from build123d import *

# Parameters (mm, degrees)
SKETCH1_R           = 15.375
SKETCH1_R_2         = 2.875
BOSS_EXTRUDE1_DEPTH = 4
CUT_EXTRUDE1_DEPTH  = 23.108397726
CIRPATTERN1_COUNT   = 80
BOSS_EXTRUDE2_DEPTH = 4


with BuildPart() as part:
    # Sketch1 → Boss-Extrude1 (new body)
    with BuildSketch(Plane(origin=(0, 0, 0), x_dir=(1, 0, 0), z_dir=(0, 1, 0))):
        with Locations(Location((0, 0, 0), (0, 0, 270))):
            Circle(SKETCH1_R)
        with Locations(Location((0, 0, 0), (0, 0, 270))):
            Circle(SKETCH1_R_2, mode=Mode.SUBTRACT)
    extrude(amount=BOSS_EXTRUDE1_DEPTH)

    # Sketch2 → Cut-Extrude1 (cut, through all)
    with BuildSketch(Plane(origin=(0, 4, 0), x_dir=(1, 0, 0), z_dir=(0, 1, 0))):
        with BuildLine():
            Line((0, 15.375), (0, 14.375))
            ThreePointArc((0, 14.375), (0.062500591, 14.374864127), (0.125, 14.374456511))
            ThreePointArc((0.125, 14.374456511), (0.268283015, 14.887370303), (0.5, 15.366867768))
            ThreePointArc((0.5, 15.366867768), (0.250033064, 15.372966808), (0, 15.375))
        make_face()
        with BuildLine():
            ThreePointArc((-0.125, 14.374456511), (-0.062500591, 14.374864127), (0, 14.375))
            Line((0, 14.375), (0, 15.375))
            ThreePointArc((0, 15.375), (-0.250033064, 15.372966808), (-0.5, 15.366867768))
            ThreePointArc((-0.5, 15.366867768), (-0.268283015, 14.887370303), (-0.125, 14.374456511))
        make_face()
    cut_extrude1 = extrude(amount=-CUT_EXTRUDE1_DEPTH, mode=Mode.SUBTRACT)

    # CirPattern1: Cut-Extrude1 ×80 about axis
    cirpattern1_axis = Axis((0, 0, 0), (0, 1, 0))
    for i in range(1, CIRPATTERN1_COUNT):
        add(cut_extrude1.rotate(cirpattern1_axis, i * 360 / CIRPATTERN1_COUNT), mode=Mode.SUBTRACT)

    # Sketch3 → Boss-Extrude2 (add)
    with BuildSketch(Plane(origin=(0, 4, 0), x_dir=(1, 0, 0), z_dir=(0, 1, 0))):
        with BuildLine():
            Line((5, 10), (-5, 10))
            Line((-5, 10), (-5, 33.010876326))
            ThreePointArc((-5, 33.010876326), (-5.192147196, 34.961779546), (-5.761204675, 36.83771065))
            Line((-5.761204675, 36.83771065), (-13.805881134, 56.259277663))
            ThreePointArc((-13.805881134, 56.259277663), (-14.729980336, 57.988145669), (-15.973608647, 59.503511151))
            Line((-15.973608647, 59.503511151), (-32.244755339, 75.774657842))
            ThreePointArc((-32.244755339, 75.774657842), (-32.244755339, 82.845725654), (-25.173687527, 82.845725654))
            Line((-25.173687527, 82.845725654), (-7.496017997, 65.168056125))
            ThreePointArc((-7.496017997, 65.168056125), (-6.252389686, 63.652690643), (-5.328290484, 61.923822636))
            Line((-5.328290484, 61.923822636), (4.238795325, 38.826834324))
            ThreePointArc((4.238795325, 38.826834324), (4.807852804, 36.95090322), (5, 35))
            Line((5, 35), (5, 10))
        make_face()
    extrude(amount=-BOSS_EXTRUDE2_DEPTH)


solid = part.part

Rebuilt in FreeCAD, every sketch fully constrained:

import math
import FreeCAD as App
import Part
import Sketcher
Q = App.Units.Quantity

doc = App.newDocument("Part")
body = doc.addObject("PartDesign::Body", "Body")

sketch1 = body.newObject("Sketcher::SketchObject", "Sketch")
sketch1.AttachmentSupport = (doc.getObject("XZ_Plane"), [""])
sketch1.MapMode = "FlatFace"
sketch1.addGeometry([
    Part.Circle(App.Vector(0, 0, 0), App.Vector(0, 0, 1), 15.4),
    Part.Circle(App.Vector(0, 0, 0), App.Vector(0, 0, 1), 2.9),
], False)
sketch1.addConstraint([
    Sketcher.Constraint("Coincident", 0, 3, -1, 1),
    Sketcher.Constraint("Coincident", 1, 3, -1, 1),
    Sketcher.Constraint("Diameter", 0, Q("30.75 mm")),
    Sketcher.Constraint("Diameter", 1, Q("5.75 mm")),
])
pad1 = body.newObject("PartDesign::Pad", "Pad")
pad1.Profile = sketch1
pad1.Length = 4
pad1.Reversed = True

sketch2 = body.newObject("Sketcher::SketchObject", "Sketch001")
sketch2.AttachmentSupport = (doc.getObject("XZ_Plane"), [""])
sketch2.MapMode = "FlatFace"
sketch2.AttachmentOffset = App.Placement(App.Vector(0, 0, -4), App.Rotation())
sketch2.addGeometry([
    Part.ArcOfCircle(Part.Circle(App.Vector(0, 0, 0), App.Vector(0, 0, 1), 14.37), math.radians(-90), math.radians(-89.5)),
    Part.ArcOfCircle(Part.Circle(App.Vector(3.07, -13.83, 0), App.Vector(0, 0, 1), 3), math.radians(-169), math.radians(-149)),
    Part.ArcOfCircle(Part.Circle(App.Vector(0, 0, 0), App.Vector(0, 0, 1), 15.37), math.radians(-90), math.radians(-88.14)),
    Part.ArcOfCircle(Part.Circle(App.Vector(0, 0, 0), App.Vector(0, 0, 1), 15.37), math.radians(-91.86), math.radians(-90)),
    Part.ArcOfCircle(Part.Circle(App.Vector(-3.07, -13.83, 0), App.Vector(0, 0, 1), 3), math.radians(-31), math.radians(-11)),
    Part.ArcOfCircle(Part.Circle(App.Vector(0, 0, 0), App.Vector(0, 0, 1), 14.37), math.radians(-90.5), math.radians(-90)),
], False)
sketch2.addConstraint([
    Sketcher.Constraint("Coincident", 0, 2, 1, 1),
    Sketcher.Constraint("Coincident", 1, 2, 2, 2),
    Sketcher.Constraint("Tangent", 2, 1, 3, 2),
    Sketcher.Constraint("Coincident", 3, 1, 4, 1),
    Sketcher.Constraint("Coincident", 4, 2, 5, 1),
    Sketcher.Constraint("Tangent", 5, 2, 0, 1),
    Sketcher.Constraint("Coincident", 0, 3, -1, 1),
    Sketcher.Constraint("Coincident", 2, 3, -1, 1),
    Sketcher.Constraint("Equal", 2, 3),
    Sketcher.Constraint("Equal", 1, 4),
    Sketcher.Constraint("Equal", 0, 5),
    Sketcher.Constraint("Symmetric", 1, 3, 4, 3, -2),
    Sketcher.Constraint("PointOnObject", 2, 1, -2),
    Sketcher.Constraint("PointOnObject", 5, 2, -2),
    Sketcher.Constraint("Radius", 1, Q("3 mm")),
    Sketcher.Constraint("Radius", 0, Q("14.374999 mm")),
    Sketcher.Constraint("DistanceX", 3, 1, 1, 2, Q("1 mm")),
    Sketcher.Constraint("DistanceY", 2, 1, 5, 2, Q("1 mm")),
    Sketcher.Constraint("DistanceX", 4, 2, 0, 2, Q("0.25 mm")),
])
pocket1 = body.newObject("PartDesign::Pocket", "Pocket")
pocket1.Profile = sketch2
pocket1.Type = "ThroughAll"
pocket1.Reversed = True
doc.recompute()

polarpattern = body.newObject("PartDesign::PolarPattern", "PolarPattern")
polarpattern.Originals = [pocket1]
polarpattern.Axis = (doc.getObject("Y_Axis"), [""])
polarpattern.Angle = 360
polarpattern.Occurrences = 80
body.Tip = polarpattern

sketch3 = body.newObject("Sketcher::SketchObject", "Sketch002")
sketch3.AttachmentSupport = (doc.getObject("XZ_Plane"), [""])
sketch3.MapMode = "FlatFace"
sketch3.AttachmentOffset = App.Placement(App.Vector(0, 0, -4), App.Rotation())
sketch3.addGeometry([
    Part.LineSegment(App.Vector(-5, -10, 0), App.Vector(5, -10, 0)),
    Part.LineSegment(App.Vector(5, -10, 0), App.Vector(5, -35, 0)),
    Part.ArcOfCircle(Part.Circle(App.Vector(-5, -35, 0), App.Vector(0, 0, 1), 10), math.radians(-22), math.radians(0)),
    Part.LineSegment(App.Vector(4.2, -38.8, 0), App.Vector(-5.3, -61.9, 0)),
    Part.ArcOfCircle(Part.Circle(App.Vector(-14.6, -58.1, 0), App.Vector(0, 0, 1), 10), math.radians(-45), math.radians(-22)),
    Part.LineSegment(App.Vector(-7.5, -65.2, 0), App.Vector(-25.2, -82.8, 0)),
    Part.ArcOfCircle(Part.Circle(App.Vector(-28.7, -79.3, 0), App.Vector(0, 0, 1), 5), math.radians(135), math.radians(315)),
    Part.LineSegment(App.Vector(-32.2, -75.8, 0), App.Vector(-16, -59.5, 0)),
    Part.ArcOfCircle(Part.Circle(App.Vector(-23, -52.4, 0), App.Vector(0, 0, 1), 10), math.radians(-45), math.radians(-23)),
    Part.LineSegment(App.Vector(-13.8, -56.3, 0), App.Vector(-5.8, -36.8, 0)),
    Part.ArcOfCircle(Part.Circle(App.Vector(-15, -33, 0), App.Vector(0, 0, 1), 10), math.radians(-22), math.radians(0)),
    Part.LineSegment(App.Vector(-5, -33, 0), App.Vector(-5, -10, 0)),
], False)
sketch3.addConstraint([
    Sketcher.Constraint("Coincident", 0, 2, 1, 1),
    Sketcher.Constraint("Tangent", 1, 2, 2, 2),
    Sketcher.Constraint("Tangent", 2, 1, 3, 1),
    Sketcher.Constraint("Tangent", 3, 2, 4, 2),
    Sketcher.Constraint("Tangent", 4, 1, 5, 1),
    Sketcher.Constraint("Tangent", 5, 2, 6, 2),
    Sketcher.Constraint("Tangent", 6, 1, 7, 1),
    Sketcher.Constraint("Tangent", 7, 2, 8, 1),
    Sketcher.Constraint("Tangent", 8, 2, 9, 1),
    Sketcher.Constraint("Tangent", 9, 2, 10, 1),
    Sketcher.Constraint("Tangent", 10, 2, 11, 1),
    Sketcher.Constraint("Coincident", 11, 2, 0, 1),
    Sketcher.Constraint("Horizontal", 0),
    Sketcher.Constraint("Vertical", 1),
    Sketcher.Constraint("Vertical", 11),
    Sketcher.Constraint("Equal", 2, 4),
    Sketcher.Constraint("Equal", 4, 8),
    Sketcher.Constraint("Equal", 8, 10),
    Sketcher.Constraint("Parallel", 5, 7),
    Sketcher.Constraint("Parallel", 3, 9),
    Sketcher.Constraint("Vertical", 2, 3, 10, 2),
    Sketcher.Constraint("Equal", 3, 5),
    Sketcher.Constraint("Radius", 2, Q("10 mm")),
    Sketcher.Constraint("Radius", 6, Q("5 mm")),
    Sketcher.Constraint("DistanceY", 1, 2, 1, 1, Q("25 mm")),
    Sketcher.Constraint("Angle", 5, Q("-135 deg")),
    Sketcher.Constraint("Distance", 3, Q("25 mm")),
    Sketcher.Constraint("DistanceX", 2, 3, -1, 1, Q("5 mm")),
    Sketcher.Constraint("DistanceY", 2, 3, -1, 1, Q("35 mm")),
    Sketcher.Constraint("Angle", 3, Q("-112.5 deg")),
    Sketcher.Constraint("DistanceY", 11, 1, 11, 2, Q("23.010876 mm")),
])
pad2 = body.newObject("PartDesign::Pad", "Pad001")
pad2.Profile = sketch3
pad2.Length = 4

doc.recompute()
